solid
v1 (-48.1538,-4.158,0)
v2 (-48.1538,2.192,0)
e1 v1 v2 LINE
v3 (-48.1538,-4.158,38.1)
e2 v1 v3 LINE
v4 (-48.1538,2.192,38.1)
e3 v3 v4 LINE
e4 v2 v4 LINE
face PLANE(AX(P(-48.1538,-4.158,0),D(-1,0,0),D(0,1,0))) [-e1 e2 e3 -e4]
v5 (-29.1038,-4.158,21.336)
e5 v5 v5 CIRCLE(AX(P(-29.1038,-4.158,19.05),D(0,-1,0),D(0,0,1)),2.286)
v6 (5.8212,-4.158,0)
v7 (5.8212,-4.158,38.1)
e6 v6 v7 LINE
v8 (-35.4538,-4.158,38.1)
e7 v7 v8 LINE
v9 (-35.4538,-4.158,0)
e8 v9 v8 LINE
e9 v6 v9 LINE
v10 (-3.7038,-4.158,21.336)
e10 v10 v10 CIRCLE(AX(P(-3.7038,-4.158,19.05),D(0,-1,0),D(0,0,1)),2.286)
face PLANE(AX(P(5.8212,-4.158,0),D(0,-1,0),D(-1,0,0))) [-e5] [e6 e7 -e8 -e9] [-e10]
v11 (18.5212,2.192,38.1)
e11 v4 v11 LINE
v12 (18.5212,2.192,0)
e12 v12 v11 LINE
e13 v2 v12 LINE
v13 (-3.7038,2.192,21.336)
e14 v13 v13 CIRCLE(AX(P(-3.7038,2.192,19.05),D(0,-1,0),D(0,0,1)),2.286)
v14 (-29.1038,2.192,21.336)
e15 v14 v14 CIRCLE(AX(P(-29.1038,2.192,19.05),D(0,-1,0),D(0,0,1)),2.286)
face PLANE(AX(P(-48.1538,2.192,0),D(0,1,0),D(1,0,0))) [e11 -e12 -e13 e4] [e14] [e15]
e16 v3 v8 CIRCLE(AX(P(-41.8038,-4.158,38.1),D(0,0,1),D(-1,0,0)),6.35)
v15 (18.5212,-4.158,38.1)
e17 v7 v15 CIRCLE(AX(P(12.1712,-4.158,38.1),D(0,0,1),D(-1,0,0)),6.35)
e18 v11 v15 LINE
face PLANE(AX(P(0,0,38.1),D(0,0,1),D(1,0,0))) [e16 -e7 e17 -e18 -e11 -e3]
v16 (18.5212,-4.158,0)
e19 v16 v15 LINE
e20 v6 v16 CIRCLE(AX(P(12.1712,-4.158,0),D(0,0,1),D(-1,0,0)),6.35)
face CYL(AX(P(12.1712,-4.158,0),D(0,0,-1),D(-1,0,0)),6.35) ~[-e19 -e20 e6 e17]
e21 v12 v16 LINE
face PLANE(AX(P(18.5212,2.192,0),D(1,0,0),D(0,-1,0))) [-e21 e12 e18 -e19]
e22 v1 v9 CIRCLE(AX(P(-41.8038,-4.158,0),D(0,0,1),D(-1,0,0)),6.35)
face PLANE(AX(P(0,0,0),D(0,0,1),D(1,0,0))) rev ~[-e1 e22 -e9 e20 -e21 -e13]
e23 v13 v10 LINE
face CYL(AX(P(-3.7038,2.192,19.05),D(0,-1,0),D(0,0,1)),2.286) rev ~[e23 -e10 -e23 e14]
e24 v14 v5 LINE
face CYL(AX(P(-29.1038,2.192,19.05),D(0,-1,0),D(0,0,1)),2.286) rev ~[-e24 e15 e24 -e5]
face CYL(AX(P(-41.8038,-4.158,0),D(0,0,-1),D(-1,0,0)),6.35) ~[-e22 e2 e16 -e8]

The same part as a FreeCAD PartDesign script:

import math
import FreeCAD as App
import Part
import Sketcher

V = App.Vector
Q = App.Units.Quantity

doc = App.newDocument("Part")
params = doc.addObject("Spreadsheet::Sheet", "Params")
for row, (alias, value) in enumerate([
    ("sketch1_radius", "0.25 in"),
    ("sketch1_height", "0.25 in"),
    ("sketch1_width", "2.625 in"),
    ("pad1_length", "1.5 in"),
    ("sketch2_diameter", "0.18 in"),
    ("hole_diameter", "0.18 in"),
], start=1):
    params.set(f"A{row}", alias)
    params.set(f"B{row}", "=" + value)
    params.setAlias(f"B{row}", alias)

body = doc.addObject("PartDesign::Body", "Body")

# Sketch on XY plane
sketch1 = doc.addObject("Sketcher::SketchObject", "Sketch")
body.addObject(sketch1)
sketch1.AttachmentSupport = (doc.XY_Plane, [""])
sketch1.MapMode = "FlatFace"
sketch1.addGeometry(Part.LineSegment(V(-48, 2, 0), V(-48, -4, 0)), False)
sketch1.addGeometry(Part.ArcOfCircle(Part.Circle(V(-42, -4, 0), V(0, 0, 1), 6), math.radians(180), math.radians(360)), False)
sketch1.addGeometry(Part.LineSegment(V(-35, -4, 0), V(6, -4, 0)), False)
sketch1.addGeometry(Part.ArcOfCircle(Part.Circle(V(12, -4, 0), V(0, 0, 1), 6), math.radians(180), math.radians(360)), False)
sketch1.addGeometry(Part.LineSegment(V(19, -4, 0), V(19, 2, 0)), False)
sketch1.addGeometry(Part.LineSegment(V(19, 2, 0), V(-48, 2, 0)), False)
sketch1.addConstraint(Sketcher.Constraint("Tangent", 0, 2, 1, 1))
sketch1.addConstraint(Sketcher.Constraint("Coincident", 1, 2, 2, 1))
sketch1.addConstraint(Sketcher.Constraint("Coincident", 2, 2, 3, 1))
sketch1.addConstraint(Sketcher.Constraint("Tangent", 3, 2, 4, 1))
sketch1.addConstraint(Sketcher.Constraint("Coincident", 4, 2, 5, 1))
sketch1.addConstraint(Sketcher.Constraint("Coincident", 5, 2, 0, 1))
sketch1.addConstraint(Sketcher.Constraint("Vertical", 0))
sketch1.addConstraint(Sketcher.Constraint("Horizontal", 2))
sketch1.addConstraint(Sketcher.Constraint("Vertical", 4))
sketch1.addConstraint(Sketcher.Constraint("Horizontal", 5))
sketch1.addConstraint(Sketcher.Constraint("Equal", 1, 3))
sketch1.addConstraint(Sketcher.Constraint("Horizontal", 1, 3, 3, 3))
sketch1.addConstraint(Sketcher.Constraint("Horizontal", 0, 2, 1, 2))
sketch1.addConstraint(Sketcher.Constraint("Radius", 1, Q("0.25 in")))
sketch1.addConstraint(Sketcher.Constraint("DistanceY", 0, 2, 0, 1, Q("0.25 in")))
sketch1.addConstraint(Sketcher.Constraint("DistanceX", 5, 2, 5, 1, Q("2.625 in")))
sketch1.addConstraint(Sketcher.Constraint("DistanceY", 1, 3, -1, 1, Q("0.1637 in")))
sketch1.addConstraint(Sketcher.Constraint("DistanceX", 1, 3, -1, 1, Q("41.8038 mm")))
sketch1.setExpression("Constraints[13]", "Params.sketch1_radius")
sketch1.setExpression("Constraints[14]", "Params.sketch1_height")
sketch1.setExpression("Constraints[15]", "Params.sketch1_width")
pad1 = doc.addObject("PartDesign::Pad", "Pad")
body.addObject(pad1)
pad1.Profile = sketch1
pad1.setExpression("Length", "Params.pad1_length")

# Sketch on XZ plane
sketch2 = doc.addObject("Sketcher::SketchObject", "Sketch001")
body.addObject(sketch2)
sketch2.AttachmentSupport = (doc.XZ_Plane, [""])
sketch2.MapMode = "FlatFace"
sketch2.AttachmentOffset = App.Placement(V(0, 0, -0.0862992 * 25.4), App.Rotation())
sketch2.addGeometry(Part.Circle(V(-3.7, 19.1, 0), V(0, 0, 1), 2.3), False)
sketch2.addGeometry(Part.Circle(V(-29.1, 19.1, 0), V(0, 0, 1), 2.3), False)
sketch2.addConstraint(Sketcher.Constraint("Equal", 0, 1))
sketch2.addConstraint(Sketcher.Constraint("Horizontal", 0, 3, 1, 3))
sketch2.addConstraint(Sketcher.Constraint("Diameter", 0, Q("0.18 in")))
sketch2.addConstraint(Sketcher.Constraint("DistanceX", 1, 3, 0, 3, Q("1 in")))
sketch2.addConstraint(Sketcher.Constraint("DistanceY", -1, 1, 0, 3, Q("0.75 in")))
sketch2.addConstraint(Sketcher.Constraint("DistanceX", 0, 3, -1, 1, Q("3.7038 mm")))
sketch2.setExpression("Constraints[2]", "Params.sketch2_diameter")
doc.recompute()
hole = doc.addObject("PartDesign::Hole", "Hole")
body.addObject(hole)
hole.Profile = sketch2
hole.ThreadType = "None"
hole.setExpression("Diameter", "Params.hole_diameter")
hole.DepthType = "ThroughAll"
hole.Reversed = True

doc.recompute()
